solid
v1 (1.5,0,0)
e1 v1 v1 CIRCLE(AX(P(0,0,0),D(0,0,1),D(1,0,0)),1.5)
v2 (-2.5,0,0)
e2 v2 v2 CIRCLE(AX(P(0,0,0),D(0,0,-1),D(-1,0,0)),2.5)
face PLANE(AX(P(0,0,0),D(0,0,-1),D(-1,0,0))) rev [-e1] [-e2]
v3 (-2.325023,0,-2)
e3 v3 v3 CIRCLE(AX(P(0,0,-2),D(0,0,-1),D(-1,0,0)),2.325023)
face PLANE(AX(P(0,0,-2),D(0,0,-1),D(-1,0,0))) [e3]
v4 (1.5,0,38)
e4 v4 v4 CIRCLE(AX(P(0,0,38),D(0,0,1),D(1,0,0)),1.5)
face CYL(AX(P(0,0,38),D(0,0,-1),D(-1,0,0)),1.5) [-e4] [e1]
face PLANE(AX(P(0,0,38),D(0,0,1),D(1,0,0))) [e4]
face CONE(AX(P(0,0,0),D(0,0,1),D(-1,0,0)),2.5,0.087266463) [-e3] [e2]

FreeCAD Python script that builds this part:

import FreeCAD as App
import Part
import Sketcher

V = App.Vector

doc = App.newDocument("Part")
body = doc.addObject("PartDesign::Body", "Body")

# Sketch on XY plane
sketch1 = doc.addObject("Sketcher::SketchObject", "Sketch")
body.addObject(sketch1)
sketch1.AttachmentSupport = (doc.XY_Plane, [""])
sketch1.MapMode = "FlatFace"
sketch1.addGeometry(Part.Circle(V(0, 0, 0), V(0, 0, 1), 1.5), False)
sketch1.addConstraint(Sketcher.Constraint("Coincident", 0, 3, -1, 1))
sketch1.addConstraint(Sketcher.Constraint("Diameter", 0, 3.0))
pad1 = doc.addObject("PartDesign::Pad", "Pad")
body.addObject(pad1)
pad1.Profile = sketch1
pad1.Length = 38

# Sketch on XY plane
sketch2 = doc.addObject("Sketcher::SketchObject", "Sketch001")
body.addObject(sketch2)
sketch2.AttachmentSupport = (doc.XY_Plane, [""])
sketch2.MapMode = "FlatFace"
sketch2.addGeometry(Part.Circle(V(0, 0, 0), V(0, 0, 1), 2.5), False)
sketch2.addConstraint(Sketcher.Constraint("Coincident", 0, 3, -1, 1))
sketch2.addConstraint(Sketcher.Constraint("Diameter", 0, 5.0))
pad2 = doc.addObject("PartDesign::Pad", "Pad001")
body.addObject(pad2)
pad2.Profile = sketch2
pad2.Length = 2
pad2.Reversed = True
pad2.TaperAngle = -5

doc.recompute()
